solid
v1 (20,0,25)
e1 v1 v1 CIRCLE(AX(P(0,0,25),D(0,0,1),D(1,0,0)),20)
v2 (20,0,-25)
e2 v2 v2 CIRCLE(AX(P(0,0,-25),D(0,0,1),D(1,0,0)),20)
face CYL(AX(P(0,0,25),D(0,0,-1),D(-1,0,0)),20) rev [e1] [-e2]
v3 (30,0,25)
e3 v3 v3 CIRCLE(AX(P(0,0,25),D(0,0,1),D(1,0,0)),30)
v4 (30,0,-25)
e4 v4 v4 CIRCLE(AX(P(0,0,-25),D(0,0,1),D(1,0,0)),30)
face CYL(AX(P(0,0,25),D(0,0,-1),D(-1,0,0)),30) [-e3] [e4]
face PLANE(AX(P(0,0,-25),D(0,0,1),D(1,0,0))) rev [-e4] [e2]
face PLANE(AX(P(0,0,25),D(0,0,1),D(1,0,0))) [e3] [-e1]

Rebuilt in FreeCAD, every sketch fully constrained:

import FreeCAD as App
import Part
import Sketcher
from FreeCAD import Vector

doc = App.newDocument("Part")
body = doc.addObject("PartDesign::Body", "Body")

sketch1 = body.newObject("Sketcher::SketchObject", "Sketch")
sketch1.AttachmentSupport = (doc.getObject("XY_Plane"), [""])
sketch1.MapMode = "FlatFace"
sketch1.addGeometry([
    Part.Circle(Vector(0, 0, 0), Vector(0, 0, 1), 30),
    Part.Circle(Vector(0, 0, 0), Vector(0, 0, 1), 20),
], False)
sketch1.addConstraint([
    Sketcher.Constraint("Coincident", 0, 3, -1, 1),
    Sketcher.Constraint("Coincident", 1, 3, -1, 1),
    Sketcher.Constraint("Diameter", 0, 60.0),
    Sketcher.Constraint("Diameter", 1, 40.0),
])
pad1 = body.newObject("PartDesign::Pad", "Pad")
pad1.Profile = sketch1
pad1.Length = 50
pad1.Midplane = True

doc.recompute()
